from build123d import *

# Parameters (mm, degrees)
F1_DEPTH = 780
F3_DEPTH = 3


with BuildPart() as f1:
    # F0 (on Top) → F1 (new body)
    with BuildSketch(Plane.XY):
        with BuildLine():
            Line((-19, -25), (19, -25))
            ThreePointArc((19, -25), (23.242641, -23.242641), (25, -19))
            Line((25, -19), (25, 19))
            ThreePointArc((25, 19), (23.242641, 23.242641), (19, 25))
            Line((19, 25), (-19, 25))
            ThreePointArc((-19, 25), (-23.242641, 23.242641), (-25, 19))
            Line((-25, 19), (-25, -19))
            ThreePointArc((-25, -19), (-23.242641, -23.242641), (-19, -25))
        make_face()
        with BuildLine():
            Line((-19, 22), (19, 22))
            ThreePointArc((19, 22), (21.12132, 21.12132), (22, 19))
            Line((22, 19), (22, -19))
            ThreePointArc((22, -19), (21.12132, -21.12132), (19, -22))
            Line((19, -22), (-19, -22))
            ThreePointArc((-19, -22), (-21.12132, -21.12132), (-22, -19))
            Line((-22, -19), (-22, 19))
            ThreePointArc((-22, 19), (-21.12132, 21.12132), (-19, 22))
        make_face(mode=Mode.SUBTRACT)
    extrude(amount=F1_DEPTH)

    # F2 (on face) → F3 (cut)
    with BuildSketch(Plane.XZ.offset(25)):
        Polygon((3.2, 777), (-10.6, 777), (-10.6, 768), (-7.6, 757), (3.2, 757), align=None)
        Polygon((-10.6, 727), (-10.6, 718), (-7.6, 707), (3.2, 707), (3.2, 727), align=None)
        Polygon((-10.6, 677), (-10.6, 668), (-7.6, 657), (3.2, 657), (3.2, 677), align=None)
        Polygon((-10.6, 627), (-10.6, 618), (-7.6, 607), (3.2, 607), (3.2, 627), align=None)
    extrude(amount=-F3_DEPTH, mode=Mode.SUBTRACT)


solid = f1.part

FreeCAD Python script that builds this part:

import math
import FreeCAD as App
import Part
import Sketcher
from FreeCAD import Vector
Q = App.Units.Quantity

doc = App.newDocument("Part")
body = doc.addObject("PartDesign::Body", "Body")

# Sketch on XY plane
sketch1 = body.newObject("Sketcher::SketchObject", "Sketch")
sketch1.AttachmentSupport = (doc.getObject("XY_Plane"), [""])
sketch1.MapMode = "FlatFace"
sketch1.addGeometry([
    Part.LineSegment(Vector(-19, -25, 0), Vector(19, -25, 0)),  # 0
    Part.ArcOfCircle(Part.Circle(Vector(19, -19, 0), Vector(0, 0, 1), 6), math.radians(-90), math.radians(0)),  # 1
    Part.LineSegment(Vector(25, -19, 0), Vector(25, 19, 0)),  # 2
    Part.ArcOfCircle(Part.Circle(Vector(19, 19, 0), Vector(0, 0, 1), 6), math.radians(0), math.radians(90)),  # 3
    Part.LineSegment(Vector(19, 25, 0), Vector(-19, 25, 0)),  # 4
    Part.ArcOfCircle(Part.Circle(Vector(-19, 19, 0), Vector(0, 0, 1), 6), math.radians(90), math.radians(180)),  # 5
    Part.LineSegment(Vector(-25, 19, 0), Vector(-25, -19, 0)),  # 6
    Part.ArcOfCircle(Part.Circle(Vector(-19, -19, 0), Vector(0, 0, 1), 6), math.radians(180), math.radians(270)),  # 7
    Part.ArcOfCircle(Part.Circle(Vector(-19, 19, 0), Vector(0, 0, 1), 3), math.radians(90), math.radians(180)),  # 8
    Part.LineSegment(Vector(-19, 22, 0), Vector(19, 22, 0)),  # 9
    Part.ArcOfCircle(Part.Circle(Vector(19, 19, 0), Vector(0, 0, 1), 3), math.radians(0), math.radians(90)),  # 10
    Part.LineSegment(Vector(22, 19, 0), Vector(22, -19, 0)),  # 11
    Part.ArcOfCircle(Part.Circle(Vector(19, -19, 0), Vector(0, 0, 1), 3), math.radians(-90), math.radians(0)),  # 12
    Part.LineSegment(Vector(19, -22, 0), Vector(-19, -22, 0)),  # 13
    Part.ArcOfCircle(Part.Circle(Vector(-19, -19, 0), Vector(0, 0, 1), 3), math.radians(-180), math.radians(-90)),  # 14
    Part.LineSegment(Vector(-22, -19, 0), Vector(-22, 19, 0)),  # 15
], False)
sketch1.addConstraint([
    Sketcher.Constraint("Tangent", 0, 2, 1, 1),
    Sketcher.Constraint("Tangent", 1, 2, 2, 1),
    Sketcher.Constraint("Tangent", 2, 2, 3, 1),
    Sketcher.Constraint("Tangent", 3, 2, 4, 1),
    Sketcher.Constraint("Tangent", 4, 2, 5, 1),
    Sketcher.Constraint("Tangent", 5, 2, 6, 1),
    Sketcher.Constraint("Tangent", 6, 2, 7, 1),
    Sketcher.Constraint("Tangent", 7, 2, 0, 1),
    Sketcher.Constraint("Tangent", 8, 1, 9, 1),
    Sketcher.Constraint("Tangent", 9, 2, 10, 2),
    Sketcher.Constraint("Tangent", 10, 1, 11, 1),
    Sketcher.Constraint("Tangent", 11, 2, 12, 2),
    Sketcher.Constraint("Tangent", 12, 1, 13, 1),
    Sketcher.Constraint("Tangent", 13, 2, 14, 2),
    Sketcher.Constraint("Tangent", 14, 1, 15, 1),
    Sketcher.Constraint("Tangent", 15, 2, 8, 2),
    Sketcher.Constraint("Horizontal", 0),
    Sketcher.Constraint("Vertical", 2),
    Sketcher.Constraint("Horizontal", 4),
    Sketcher.Constraint("Vertical", 6),
    Sketcher.Constraint("Horizontal", 9),
    Sketcher.Constraint("Vertical", 11),
    Sketcher.Constraint("Horizontal", 13),
    Sketcher.Constraint("Vertical", 15),
    Sketcher.Constraint("Coincident", 8, 3, 5, 3),
    Sketcher.Constraint("Coincident", 10, 3, 3, 3),
    Sketcher.Constraint("Coincident", 12, 3, 1, 3),
    Sketcher.Constraint("Equal", 1, 3),
    Sketcher.Constraint("Equal", 3, 5),
    Sketcher.Constraint("Equal", 5, 7),
    Sketcher.Constraint("Equal", 12, 14),
    Sketcher.Constraint("Symmetric", 1, 3, 5, 3, -1, 1),
    Sketcher.Constraint("Equal", 13, 2),
    Sketcher.Constraint("Radius", 1, Q("5.999999 mm")),
    Sketcher.Constraint("Radius", 8, Q("3.000001 mm")),
    Sketcher.Constraint("DistanceX", 0, 1, 0, 2, Q("38 mm")),
])
pad1 = body.newObject("PartDesign::Pad", "Pad")
pad1.Profile = sketch1
pad1.Length = 780

# Sketch on XZ plane
sketch2 = body.newObject("Sketcher::SketchObject", "Sketch001")
sketch2.AttachmentSupport = (doc.getObject("XZ_Plane"), [""])
sketch2.MapMode = "FlatFace"
sketch2.AttachmentOffset = App.Placement(Vector(0, 0, 25), App.Rotation())
sketch2.addGeometry([
    Part.LineSegment(Vector(3, 777, 0), Vector(-11, 777, 0)),  # 0
    Part.LineSegment(Vector(-11, 777, 0), Vector(-11, 768, 0)),  # 1
    Part.LineSegment(Vector(-11, 768, 0), Vector(-8, 757, 0)),  # 2
    Part.LineSegment(Vector(-8, 757, 0), Vector(3, 757, 0)),  # 3
    Part.LineSegment(Vector(3, 757, 0), Vector(3, 777, 0)),  # 4
    Part.LineSegment(Vector(-11, 727, 0), Vector(-11, 718, 0)),  # 5
    Part.LineSegment(Vector(-11, 718, 0), Vector(-8, 707, 0)),  # 6
    Part.LineSegment(Vector(-8, 707, 0), Vector(3, 707, 0)),  # 7
    Part.LineSegment(Vector(3, 707, 0), Vector(3, 727, 0)),  # 8
    Part.LineSegment(Vector(3, 727, 0), Vector(-11, 727, 0)),  # 9
    Part.LineSegment(Vector(-11, 677, 0), Vector(-11, 668, 0)),  # 10
    Part.LineSegment(Vector(-11, 668, 0), Vector(-8, 657, 0)),  # 11
    Part.LineSegment(Vector(-8, 657, 0), Vector(3, 657, 0)),  # 12
    Part.LineSegment(Vector(3, 657, 0), Vector(3, 677, 0)),  # 13
    Part.LineSegment(Vector(3, 677, 0), Vector(-11, 677, 0)),  # 14
    Part.LineSegment(Vector(-11, 627, 0), Vector(-11, 618, 0)),  # 15
    Part.LineSegment(Vector(-11, 618, 0), Vector(-8, 607, 0)),  # 16
    Part.LineSegment(Vector(-8, 607, 0), Vector(3, 607, 0)),  # 17
    Part.LineSegment(Vector(3, 607, 0), Vector(3, 627, 0)),  # 18
    Part.LineSegment(Vector(3, 627, 0), Vector(-11, 627, 0)),  # 19
], False)
sketch2.addConstraint([
    Sketcher.Constraint("Coincident", 0, 2, 1, 1),
    Sketcher.Constraint("Coincident", 1, 2, 2, 1),
    Sketcher.Constraint("Coincident", 2, 2, 3, 1),
    Sketcher.Constraint("Coincident", 3, 2, 4, 1),
    Sketcher.Constraint("Coincident", 4, 2, 0, 1),
    Sketcher.Constraint("Coincident", 5, 2, 6, 1),
    Sketcher.Constraint("Coincident", 6, 2, 7, 1),
    Sketcher.Constraint("Coincident", 7, 2, 8, 1),
    Sketcher.Constraint("Coincident", 8, 2, 9, 1),
    Sketcher.Constraint("Coincident", 9, 2, 5, 1),
    Sketcher.Constraint("Coincident", 10, 2, 11, 1),
    Sketcher.Constraint("Coincident", 11, 2, 12, 1),
    Sketcher.Constraint("Coincident", 12, 2, 13, 1),
    Sketcher.Constraint("Coincident", 13, 2, 14, 1),
    Sketcher.Constraint("Coincident", 14, 2, 10, 1),
    Sketcher.Constraint("Coincident", 15, 2, 16, 1),
    Sketcher.Constraint("Coincident", 16, 2, 17, 1),
    Sketcher.Constraint("Coincident", 17, 2, 18, 1),
    Sketcher.Constraint("Coincident", 18, 2, 19, 1),
    Sketcher.Constraint("Coincident", 19, 2, 15, 1),
    Sketcher.Constraint("Horizontal", 0),
    Sketcher.Constraint("Vertical", 1),
    Sketcher.Constraint("Horizontal", 3),
    Sketcher.Constraint("Vertical", 4),
    Sketcher.Constraint("Vertical", 5),
    Sketcher.Constraint("Horizontal", 7),
    Sketcher.Constraint("Vertical", 8),
    Sketcher.Constraint("Horizontal", 9),
    Sketcher.Constraint("Vertical", 10),
    Sketcher.Constraint("Horizontal", 12),
    Sketcher.Constraint("Vertical", 13),
    Sketcher.Constraint("Horizontal", 14),
    Sketcher.Constraint("Vertical", 15),
    Sketcher.Constraint("Horizontal", 17),
    Sketcher.Constraint("Vertical", 18),
    Sketcher.Constraint("Horizontal", 19),
    Sketcher.Constraint("Parallel", 2, 6),
    Sketcher.Constraint("Parallel", 6, 11),
    Sketcher.Constraint("Parallel", 11, 16),
    Sketcher.Constraint("Vertical", 1, 2, 5, 2),
    Sketcher.Constraint("Vertical", 2, 2, 6, 2),
    Sketcher.Constraint("Vertical", 4, 2, 7, 2),
    Sketcher.Constraint("Vertical", 9, 2, 10, 2),
    Sketcher.Constraint("Vertical", 6, 2, 11, 2),
    Sketcher.Constraint("Vertical", 8, 2, 12, 2),
    Sketcher.Constraint("Vertical", 14, 2, 15, 2),
    Sketcher.Constraint("Vertical", 11, 2, 16, 2),
    Sketcher.Constraint("Vertical", 13, 2, 17, 2),
    Sketcher.Constraint("Equal", 1, 5),
    Sketcher.Constraint("Equal", 5, 10),
    Sketcher.Constraint("Equal", 10, 15),
    Sketcher.Constraint("DistanceY", 1, 2, 1, 1, Q("9 mm")),
    Sketcher.Constraint("DistanceY", 4, 1, 4, 2, Q("20 mm")),
    Sketcher.Constraint("DistanceX", 0, 2, 0, 1, Q("13.8 mm")),
    Sketcher.Constraint("DistanceX", 3, 1, 3, 2, Q("10.8 mm")),
    Sketcher.Constraint("DistanceY", -1, 1, 0, 2, Q("777 mm")),
    Sketcher.Constraint("DistanceY", -1, 1, 5, 2, Q("718 mm")),
    Sketcher.Constraint("DistanceY", -1, 1, 10, 2, Q("668 mm")),
    Sketcher.Constraint("DistanceY", -1, 1, 15, 2, Q("618 mm")),
    Sketcher.Constraint("DistanceX", 0, 2, -1, 1, Q("10.6 mm")),
])
pocket1 = body.newObject("PartDesign::Pocket", "Pocket")
pocket1.Profile = sketch2
pocket1.Length = 3

doc.recompute()
